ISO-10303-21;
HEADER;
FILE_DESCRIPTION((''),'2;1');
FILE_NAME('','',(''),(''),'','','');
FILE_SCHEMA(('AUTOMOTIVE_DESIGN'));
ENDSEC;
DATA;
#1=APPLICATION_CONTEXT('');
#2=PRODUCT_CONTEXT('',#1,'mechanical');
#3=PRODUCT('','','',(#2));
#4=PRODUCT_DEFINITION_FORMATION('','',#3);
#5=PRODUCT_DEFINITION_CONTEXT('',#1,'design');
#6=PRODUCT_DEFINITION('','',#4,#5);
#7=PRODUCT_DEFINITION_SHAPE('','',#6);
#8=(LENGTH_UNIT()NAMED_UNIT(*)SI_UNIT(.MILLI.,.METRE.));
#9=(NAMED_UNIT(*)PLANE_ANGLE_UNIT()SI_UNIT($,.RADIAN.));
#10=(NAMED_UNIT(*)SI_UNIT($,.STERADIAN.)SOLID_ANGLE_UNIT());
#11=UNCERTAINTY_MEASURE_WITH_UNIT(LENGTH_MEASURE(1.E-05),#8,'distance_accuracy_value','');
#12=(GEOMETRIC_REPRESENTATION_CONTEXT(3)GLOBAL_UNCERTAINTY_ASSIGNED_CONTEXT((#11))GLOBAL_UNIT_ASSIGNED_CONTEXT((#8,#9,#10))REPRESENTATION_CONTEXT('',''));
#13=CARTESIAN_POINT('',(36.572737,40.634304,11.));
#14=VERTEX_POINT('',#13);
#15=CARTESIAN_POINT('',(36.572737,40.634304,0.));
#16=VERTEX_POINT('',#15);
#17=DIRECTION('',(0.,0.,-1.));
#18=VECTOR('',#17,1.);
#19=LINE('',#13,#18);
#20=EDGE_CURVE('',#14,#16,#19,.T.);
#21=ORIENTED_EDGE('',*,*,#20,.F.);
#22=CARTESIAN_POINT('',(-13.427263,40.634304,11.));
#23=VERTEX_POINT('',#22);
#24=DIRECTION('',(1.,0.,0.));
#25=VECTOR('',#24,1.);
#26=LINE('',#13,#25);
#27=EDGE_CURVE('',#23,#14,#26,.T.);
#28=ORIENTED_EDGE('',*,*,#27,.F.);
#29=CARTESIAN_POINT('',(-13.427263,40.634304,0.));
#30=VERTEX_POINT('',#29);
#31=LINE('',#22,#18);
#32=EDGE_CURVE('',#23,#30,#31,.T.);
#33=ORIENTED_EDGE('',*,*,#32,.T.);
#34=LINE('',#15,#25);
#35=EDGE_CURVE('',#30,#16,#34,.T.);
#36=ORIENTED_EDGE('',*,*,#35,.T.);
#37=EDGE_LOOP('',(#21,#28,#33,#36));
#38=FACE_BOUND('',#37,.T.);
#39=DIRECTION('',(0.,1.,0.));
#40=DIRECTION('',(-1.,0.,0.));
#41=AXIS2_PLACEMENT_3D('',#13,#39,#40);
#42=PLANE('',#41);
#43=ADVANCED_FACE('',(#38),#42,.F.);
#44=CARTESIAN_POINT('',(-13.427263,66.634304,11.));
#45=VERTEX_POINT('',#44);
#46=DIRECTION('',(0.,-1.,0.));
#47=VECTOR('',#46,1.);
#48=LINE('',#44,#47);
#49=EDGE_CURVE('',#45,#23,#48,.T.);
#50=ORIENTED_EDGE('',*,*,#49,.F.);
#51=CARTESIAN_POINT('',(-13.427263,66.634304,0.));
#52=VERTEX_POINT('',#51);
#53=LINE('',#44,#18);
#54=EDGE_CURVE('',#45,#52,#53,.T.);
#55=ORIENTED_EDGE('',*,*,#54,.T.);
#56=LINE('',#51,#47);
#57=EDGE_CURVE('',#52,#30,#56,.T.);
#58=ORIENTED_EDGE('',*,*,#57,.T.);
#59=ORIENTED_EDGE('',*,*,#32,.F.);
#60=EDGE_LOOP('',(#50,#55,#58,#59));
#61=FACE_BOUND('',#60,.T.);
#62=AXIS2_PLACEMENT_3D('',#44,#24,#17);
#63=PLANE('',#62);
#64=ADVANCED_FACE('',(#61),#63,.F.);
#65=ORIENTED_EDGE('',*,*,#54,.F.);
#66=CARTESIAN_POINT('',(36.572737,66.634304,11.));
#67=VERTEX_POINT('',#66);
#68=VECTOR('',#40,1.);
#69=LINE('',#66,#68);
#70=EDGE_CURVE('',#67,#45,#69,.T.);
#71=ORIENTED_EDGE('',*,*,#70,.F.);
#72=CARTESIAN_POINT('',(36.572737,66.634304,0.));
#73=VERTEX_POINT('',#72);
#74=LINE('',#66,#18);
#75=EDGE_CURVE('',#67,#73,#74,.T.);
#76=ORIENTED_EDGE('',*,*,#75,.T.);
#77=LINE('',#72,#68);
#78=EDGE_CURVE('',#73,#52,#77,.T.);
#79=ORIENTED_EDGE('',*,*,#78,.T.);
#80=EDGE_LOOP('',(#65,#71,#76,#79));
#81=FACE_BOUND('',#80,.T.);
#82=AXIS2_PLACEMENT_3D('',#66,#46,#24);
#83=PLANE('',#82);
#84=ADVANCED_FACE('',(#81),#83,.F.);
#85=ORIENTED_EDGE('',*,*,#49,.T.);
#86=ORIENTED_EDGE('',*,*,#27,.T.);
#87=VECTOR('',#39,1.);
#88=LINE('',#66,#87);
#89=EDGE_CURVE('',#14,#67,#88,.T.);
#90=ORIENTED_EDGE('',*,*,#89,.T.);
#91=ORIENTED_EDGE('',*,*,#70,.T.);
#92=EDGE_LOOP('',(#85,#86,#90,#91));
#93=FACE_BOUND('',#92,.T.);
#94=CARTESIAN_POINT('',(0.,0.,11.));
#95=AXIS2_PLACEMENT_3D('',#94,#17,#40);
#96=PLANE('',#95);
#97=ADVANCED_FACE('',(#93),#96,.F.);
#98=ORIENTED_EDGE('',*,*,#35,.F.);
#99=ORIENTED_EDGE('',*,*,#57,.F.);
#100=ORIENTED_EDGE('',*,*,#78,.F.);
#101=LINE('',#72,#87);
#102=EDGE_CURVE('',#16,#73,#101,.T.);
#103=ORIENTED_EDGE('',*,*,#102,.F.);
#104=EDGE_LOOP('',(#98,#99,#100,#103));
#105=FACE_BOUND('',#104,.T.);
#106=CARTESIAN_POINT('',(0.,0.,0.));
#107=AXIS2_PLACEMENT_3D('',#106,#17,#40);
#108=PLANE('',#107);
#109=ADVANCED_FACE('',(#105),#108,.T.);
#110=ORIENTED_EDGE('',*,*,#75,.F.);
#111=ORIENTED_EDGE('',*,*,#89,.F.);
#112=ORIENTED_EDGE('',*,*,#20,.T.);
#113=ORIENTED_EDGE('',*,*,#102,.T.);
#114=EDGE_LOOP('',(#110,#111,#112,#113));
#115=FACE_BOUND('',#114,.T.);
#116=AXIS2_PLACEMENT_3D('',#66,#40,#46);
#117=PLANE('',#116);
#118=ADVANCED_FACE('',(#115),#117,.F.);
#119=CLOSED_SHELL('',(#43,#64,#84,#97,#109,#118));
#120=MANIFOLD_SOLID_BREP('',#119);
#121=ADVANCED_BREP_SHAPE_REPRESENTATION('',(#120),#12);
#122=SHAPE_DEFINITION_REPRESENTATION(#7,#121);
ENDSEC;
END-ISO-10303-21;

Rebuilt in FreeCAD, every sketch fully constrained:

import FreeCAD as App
import Part
import Sketcher

V = App.Vector


def add_polygon(sketch, points):
    """Adds a closed chain of lines whose ends are joined by coincident constraints."""
    first, n = sketch.GeometryCount, len(points)
    for a, b in zip(points, points[1:] + points[:1]):
        sketch.addGeometry(Part.LineSegment(App.Vector(*a, 0), App.Vector(*b, 0)), False)
    for i in range(n):
        sketch.addConstraint(Sketcher.Constraint("Coincident", first + i, 2, first + (i + 1) % n, 1))

doc = App.newDocument("Part")
body = doc.addObject("PartDesign::Body", "Body")

sketch1 = body.newObject("Sketcher::SketchObject", "Sketch")
sketch1.AttachmentSupport = (doc.getObject("XY_Plane"), [""])
sketch1.MapMode = "FlatFace"
add_polygon(sketch1, [(-13.427263, 66.634304), (-13.427263, 40.634304), (36.572737, 40.634304), (36.572737, 66.634304)])
sketch1.addConstraint([
    Sketcher.Constraint("Vertical", 0),
    Sketcher.Constraint("Horizontal", 1),
    Sketcher.Constraint("Vertical", 2),
    Sketcher.Constraint("Horizontal", 3),
    Sketcher.Constraint("DistanceX", 1, 1, 1, 2, 50.0),
    Sketcher.Constraint("DistanceY", 0, 2, 0, 1, 26.0),
    Sketcher.Constraint("DistanceX", 0, 2, -1, 1, 13.427263),
    Sketcher.Constraint("DistanceY", -1, 1, 0, 2, 40.634304),
])
pad1 = body.newObject("PartDesign::Pad", "Pad")
pad1.Profile = sketch1
pad1.Length = 11

doc.recompute()
